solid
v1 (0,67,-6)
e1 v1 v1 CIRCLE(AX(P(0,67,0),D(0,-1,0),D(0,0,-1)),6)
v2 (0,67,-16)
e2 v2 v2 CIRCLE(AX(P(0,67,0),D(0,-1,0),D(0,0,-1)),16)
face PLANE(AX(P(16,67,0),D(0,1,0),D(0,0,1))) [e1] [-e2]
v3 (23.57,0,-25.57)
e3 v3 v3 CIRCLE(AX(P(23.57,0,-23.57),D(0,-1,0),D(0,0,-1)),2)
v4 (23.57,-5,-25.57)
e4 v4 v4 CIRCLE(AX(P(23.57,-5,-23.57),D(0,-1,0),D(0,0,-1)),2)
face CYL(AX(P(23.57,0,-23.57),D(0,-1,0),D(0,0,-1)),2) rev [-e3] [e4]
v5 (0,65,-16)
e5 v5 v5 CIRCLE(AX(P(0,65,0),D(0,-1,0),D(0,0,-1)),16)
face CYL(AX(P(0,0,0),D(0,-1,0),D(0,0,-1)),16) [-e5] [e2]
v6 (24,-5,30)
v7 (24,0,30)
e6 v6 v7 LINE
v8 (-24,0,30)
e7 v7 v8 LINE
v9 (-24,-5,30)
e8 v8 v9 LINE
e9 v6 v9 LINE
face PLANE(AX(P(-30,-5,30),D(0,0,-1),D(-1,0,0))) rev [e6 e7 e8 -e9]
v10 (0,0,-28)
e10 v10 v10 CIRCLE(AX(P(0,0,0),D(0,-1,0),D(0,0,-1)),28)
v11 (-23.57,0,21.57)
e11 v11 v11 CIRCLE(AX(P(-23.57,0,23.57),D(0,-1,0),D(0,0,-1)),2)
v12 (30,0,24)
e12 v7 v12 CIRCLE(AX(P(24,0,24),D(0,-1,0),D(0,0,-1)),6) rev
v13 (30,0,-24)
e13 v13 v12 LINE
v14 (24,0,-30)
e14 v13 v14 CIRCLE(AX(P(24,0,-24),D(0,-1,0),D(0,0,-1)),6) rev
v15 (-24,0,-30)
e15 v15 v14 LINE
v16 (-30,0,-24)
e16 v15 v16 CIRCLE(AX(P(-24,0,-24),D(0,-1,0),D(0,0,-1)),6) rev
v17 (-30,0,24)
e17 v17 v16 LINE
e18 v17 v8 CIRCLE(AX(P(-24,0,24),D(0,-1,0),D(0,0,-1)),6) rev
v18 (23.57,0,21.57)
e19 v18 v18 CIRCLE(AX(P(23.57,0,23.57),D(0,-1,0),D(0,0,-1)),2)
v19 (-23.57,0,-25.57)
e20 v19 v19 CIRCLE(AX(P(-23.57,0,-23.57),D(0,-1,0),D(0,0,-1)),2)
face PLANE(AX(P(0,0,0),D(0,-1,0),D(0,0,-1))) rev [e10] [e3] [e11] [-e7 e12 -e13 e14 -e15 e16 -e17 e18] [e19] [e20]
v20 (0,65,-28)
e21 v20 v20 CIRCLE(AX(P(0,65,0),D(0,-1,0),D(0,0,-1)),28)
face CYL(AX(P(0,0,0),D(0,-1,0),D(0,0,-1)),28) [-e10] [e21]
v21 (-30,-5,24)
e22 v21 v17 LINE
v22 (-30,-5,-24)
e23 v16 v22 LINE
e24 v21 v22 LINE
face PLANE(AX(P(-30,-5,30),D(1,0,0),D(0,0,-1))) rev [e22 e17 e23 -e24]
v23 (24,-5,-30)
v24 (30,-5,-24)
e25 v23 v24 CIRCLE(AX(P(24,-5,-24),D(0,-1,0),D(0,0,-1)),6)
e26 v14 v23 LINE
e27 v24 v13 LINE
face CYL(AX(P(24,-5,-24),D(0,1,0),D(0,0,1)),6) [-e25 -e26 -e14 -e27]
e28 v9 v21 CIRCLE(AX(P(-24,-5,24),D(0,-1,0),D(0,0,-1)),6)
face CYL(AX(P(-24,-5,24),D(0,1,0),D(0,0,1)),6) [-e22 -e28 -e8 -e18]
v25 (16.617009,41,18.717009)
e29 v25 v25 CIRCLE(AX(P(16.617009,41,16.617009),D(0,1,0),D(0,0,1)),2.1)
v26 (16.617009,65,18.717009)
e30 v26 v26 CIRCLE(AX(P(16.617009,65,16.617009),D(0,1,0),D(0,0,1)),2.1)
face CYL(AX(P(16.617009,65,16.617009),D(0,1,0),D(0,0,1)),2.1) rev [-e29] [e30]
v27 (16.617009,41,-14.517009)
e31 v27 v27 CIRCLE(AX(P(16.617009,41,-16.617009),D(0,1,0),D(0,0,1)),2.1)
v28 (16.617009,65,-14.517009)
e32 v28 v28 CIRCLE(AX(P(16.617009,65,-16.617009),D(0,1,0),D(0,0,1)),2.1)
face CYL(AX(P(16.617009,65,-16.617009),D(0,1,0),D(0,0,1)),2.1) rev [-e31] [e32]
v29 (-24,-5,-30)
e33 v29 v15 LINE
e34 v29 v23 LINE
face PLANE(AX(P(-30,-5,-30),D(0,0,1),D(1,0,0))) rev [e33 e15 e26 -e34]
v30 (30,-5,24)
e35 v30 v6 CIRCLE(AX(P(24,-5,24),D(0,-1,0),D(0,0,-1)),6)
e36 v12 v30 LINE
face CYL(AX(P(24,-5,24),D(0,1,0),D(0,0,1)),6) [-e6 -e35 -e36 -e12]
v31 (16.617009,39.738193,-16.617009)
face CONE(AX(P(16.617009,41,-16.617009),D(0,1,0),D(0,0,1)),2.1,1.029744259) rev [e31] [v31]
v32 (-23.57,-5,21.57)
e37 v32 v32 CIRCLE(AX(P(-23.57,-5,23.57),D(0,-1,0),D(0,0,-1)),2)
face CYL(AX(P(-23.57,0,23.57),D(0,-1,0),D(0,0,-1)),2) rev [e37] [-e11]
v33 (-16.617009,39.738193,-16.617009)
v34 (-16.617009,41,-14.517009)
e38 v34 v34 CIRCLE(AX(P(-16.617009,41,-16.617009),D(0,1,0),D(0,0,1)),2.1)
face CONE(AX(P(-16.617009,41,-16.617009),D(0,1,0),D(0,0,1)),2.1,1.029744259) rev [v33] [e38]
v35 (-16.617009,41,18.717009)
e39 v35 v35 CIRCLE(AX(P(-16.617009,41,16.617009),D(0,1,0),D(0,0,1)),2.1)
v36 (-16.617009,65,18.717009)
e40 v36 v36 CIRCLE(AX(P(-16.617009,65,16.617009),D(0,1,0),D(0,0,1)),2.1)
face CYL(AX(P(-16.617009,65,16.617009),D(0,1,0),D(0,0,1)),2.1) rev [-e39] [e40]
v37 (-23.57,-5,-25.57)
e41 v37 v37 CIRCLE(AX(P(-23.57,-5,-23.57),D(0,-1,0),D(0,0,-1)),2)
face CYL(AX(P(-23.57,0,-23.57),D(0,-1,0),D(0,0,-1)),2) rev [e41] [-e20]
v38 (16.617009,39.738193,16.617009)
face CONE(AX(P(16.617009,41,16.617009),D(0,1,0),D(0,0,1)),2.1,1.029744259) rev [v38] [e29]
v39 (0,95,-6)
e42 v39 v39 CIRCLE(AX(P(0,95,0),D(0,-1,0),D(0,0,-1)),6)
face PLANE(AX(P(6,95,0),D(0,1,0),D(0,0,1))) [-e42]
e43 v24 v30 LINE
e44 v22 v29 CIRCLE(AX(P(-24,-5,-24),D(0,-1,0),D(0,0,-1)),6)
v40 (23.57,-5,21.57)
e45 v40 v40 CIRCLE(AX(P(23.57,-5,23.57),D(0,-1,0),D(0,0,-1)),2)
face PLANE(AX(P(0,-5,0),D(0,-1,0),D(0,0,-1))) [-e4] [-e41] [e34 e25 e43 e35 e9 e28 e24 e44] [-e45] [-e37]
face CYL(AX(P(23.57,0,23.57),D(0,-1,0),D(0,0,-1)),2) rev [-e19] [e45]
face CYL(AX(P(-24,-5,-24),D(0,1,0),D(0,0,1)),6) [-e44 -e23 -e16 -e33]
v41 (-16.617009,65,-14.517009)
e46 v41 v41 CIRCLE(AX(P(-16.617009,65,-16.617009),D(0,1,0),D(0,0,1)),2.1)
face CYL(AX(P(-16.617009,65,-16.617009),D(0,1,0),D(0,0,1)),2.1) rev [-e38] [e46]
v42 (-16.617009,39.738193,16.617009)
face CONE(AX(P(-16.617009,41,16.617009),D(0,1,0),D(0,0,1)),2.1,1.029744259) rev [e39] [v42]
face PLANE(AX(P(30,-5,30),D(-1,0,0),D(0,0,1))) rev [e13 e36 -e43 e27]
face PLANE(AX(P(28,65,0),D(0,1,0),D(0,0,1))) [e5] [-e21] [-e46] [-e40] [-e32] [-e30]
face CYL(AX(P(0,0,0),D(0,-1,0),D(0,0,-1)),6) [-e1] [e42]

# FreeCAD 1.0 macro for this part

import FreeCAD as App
import Part
import Sketcher
from FreeCAD import Vector


def edges_at(feature, points):
    """Names of the edges that pass closest to the given points."""
    edges = feature.Shape.Edges
    near = lambda p: min(range(len(edges)), key=lambda i: edges[i].distToShape(Part.Vertex(*p))[0])
    return sorted({f"Edge{near(p) + 1}" for p in points})


def add_polygon(sketch, points):
    """Adds a closed chain of lines whose ends are joined by coincident constraints."""
    first, n = sketch.GeometryCount, len(points)
    for a, b in zip(points, points[1:] + points[:1]):
        sketch.addGeometry(Part.LineSegment(App.Vector(*a, 0), App.Vector(*b, 0)), False)
    for i in range(n):
        sketch.addConstraint(Sketcher.Constraint("Coincident", first + i, 2, first + (i + 1) % n, 1))

doc = App.newDocument("Part")
body = doc.addObject("PartDesign::Body", "Body")

# Sketch on XY plane
sketch1 = body.newObject("Sketcher::SketchObject", "Sketch")
sketch1.AttachmentSupport = (doc.getObject("XY_Plane"), [""])
sketch1.MapMode = "FlatFace"
add_polygon(sketch1, [(0, 0), (28, 0), (28, 65), (16, 65), (16, 67), (6, 67), (6, 95), (0, 95)])  # lines 0-7
sketch1.addConstraint(Sketcher.Constraint("Horizontal", 0))
sketch1.addConstraint(Sketcher.Constraint("Vertical", 1))
sketch1.addConstraint(Sketcher.Constraint("Horizontal", 2))
sketch1.addConstraint(Sketcher.Constraint("Vertical", 3))
sketch1.addConstraint(Sketcher.Constraint("Horizontal", 4))
sketch1.addConstraint(Sketcher.Constraint("Vertical", 5))
sketch1.addConstraint(Sketcher.Constraint("Horizontal", 6))
sketch1.addConstraint(Sketcher.Constraint("Vertical", 7))
sketch1.addConstraint(Sketcher.Constraint("Coincident", 7, 2, -1, 1))
sketch1.addConstraint(Sketcher.Constraint("Equal", 0, 5))
sketch1.addConstraint(Sketcher.Constraint("DistanceX", 0, 1, 0, 2, 28.0))
sketch1.addConstraint(Sketcher.Constraint("DistanceX", 2, 2, 2, 1, 12.0))
sketch1.addConstraint(Sketcher.Constraint("DistanceX", 4, 2, 4, 1, 10.0))
sketch1.addConstraint(Sketcher.Constraint("DistanceY", 1, 1, 1, 2, 65.0))
sketch1.addConstraint(Sketcher.Constraint("DistanceY", 3, 1, 3, 2, 2.0))
revolution = body.newObject("PartDesign::Revolution", "Revolution")
revolution.Profile = sketch1
revolution.ReferenceAxis = (sketch1, ["V_Axis"])
revolution.Angle = 360

# Sketch on XZ plane
sketch2 = body.newObject("Sketcher::SketchObject", "Sketch001")
sketch2.AttachmentSupport = (doc.getObject("XZ_Plane"), [""])
sketch2.MapMode = "FlatFace"
add_polygon(sketch2, [(-30, 30), (-30, -30), (30, -30), (30, 30)])  # lines 0-3
sketch2.addConstraint(Sketcher.Constraint("Vertical", 0))
sketch2.addConstraint(Sketcher.Constraint("Horizontal", 1))
sketch2.addConstraint(Sketcher.Constraint("Vertical", 2))
sketch2.addConstraint(Sketcher.Constraint("Horizontal", 3))
sketch2.addConstraint(Sketcher.Constraint("Symmetric", 0, 2, 2, 2, -1, 1))
sketch2.addConstraint(Sketcher.Constraint("Equal", 3, 0))
sketch2.addConstraint(Sketcher.Constraint("DistanceX", 1, 1, 1, 2, 60.0))
pad1 = body.newObject("PartDesign::Pad", "Pad")
pad1.Profile = sketch2
pad1.Length = 5

# Sketch on XZ plane
sketch3 = body.newObject("Sketcher::SketchObject", "Sketch002")
sketch3.AttachmentSupport = (doc.getObject("XZ_Plane"), [""])
sketch3.MapMode = "FlatFace"
sketch3.AttachmentOffset = App.Placement(Vector(0, 0, 5), App.Rotation())
sketch3.addGeometry(Part.Circle(Vector(-23.57, 23.57, 0), Vector(0, 0, 1), 2), False)
sketch3.addGeometry(Part.Circle(Vector(23.57, 23.57, 0), Vector(0, 0, 1), 2), False)
sketch3.addGeometry(Part.Circle(Vector(-23.57, -23.57, 0), Vector(0, 0, 1), 2), False)
sketch3.addGeometry(Part.Circle(Vector(23.57, -23.57, 0), Vector(0, 0, 1), 2), False)
sketch3.addConstraint(Sketcher.Constraint("Equal", 0, 1))
sketch3.addConstraint(Sketcher.Constraint("Equal", 1, 2))
sketch3.addConstraint(Sketcher.Constraint("Equal", 2, 3))
sketch3.addConstraint(Sketcher.Constraint("Symmetric", 1, 3, 2, 3, -1, 1))
sketch3.addConstraint(Sketcher.Constraint("Symmetric", 0, 3, 3, 3, -1, 1))
sketch3.addConstraint(Sketcher.Constraint("Symmetric", 0, 3, 1, 3, -2))
sketch3.addConstraint(Sketcher.Constraint("Diameter", 0, 4.0))
sketch3.addConstraint(Sketcher.Constraint("DistanceX", 0, 3, -1, 1, 23.57))
sketch3.addConstraint(Sketcher.Constraint("DistanceY", -1, 1, 0, 3, 23.57))
pocket1 = body.newObject("PartDesign::Pocket", "Pocket")
pocket1.Profile = sketch3
pocket1.Length = 5
doc.recompute()

fillet = body.newObject("PartDesign::Fillet", "Fillet")
fillet.Base = (pocket1, edges_at(pocket1, [
    (-30, -2.5, 30),
    (-30, -2.5, -30),
    (30, -2.5, -30),
    (30, -2.5, 30),
]))
fillet.Radius = 6

# Sketch on XZ plane
sketch4 = body.newObject("Sketcher::SketchObject", "Sketch003")
sketch4.AttachmentSupport = (doc.getObject("XZ_Plane"), [""])
sketch4.MapMode = "FlatFace"
sketch4.AttachmentOffset = App.Placement(Vector(0, 0, -65), App.Rotation())
sketch4.addGeometry(Part.Circle(Vector(-16.617009, -16.617009, 0), Vector(0, 0, 1), 2.1), False)
sketch4.addGeometry(Part.Circle(Vector(16.617009, -16.617009, 0), Vector(0, 0, 1), 2.1), False)
sketch4.addGeometry(Part.Circle(Vector(16.617009, 16.617009, 0), Vector(0, 0, 1), 2.1), False)
sketch4.addGeometry(Part.Circle(Vector(-16.617009, 16.617009, 0), Vector(0, 0, 1), 2.1), False)
sketch4.addConstraint(Sketcher.Constraint("Equal", 0, 1))
sketch4.addConstraint(Sketcher.Constraint("Equal", 1, 2))
sketch4.addConstraint(Sketcher.Constraint("Equal", 2, 3))
sketch4.addConstraint(Sketcher.Constraint("Symmetric", 0, 3, 2, 3, -1, 1))
sketch4.addConstraint(Sketcher.Constraint("Symmetric", 1, 3, 3, 3, -1, 1))
sketch4.addConstraint(Sketcher.Constraint("Symmetric", 0, 3, 1, 3, -2))
sketch4.addConstraint(Sketcher.Constraint("Diameter", 0, 4.2))
sketch4.addConstraint(Sketcher.Constraint("DistanceX", 0, 3, -1, 1, 16.617009))
sketch4.addConstraint(Sketcher.Constraint("DistanceY", 0, 3, -1, 1, 16.617009))
doc.recompute()
hole = body.newObject("PartDesign::Hole", "Hole")
hole.Profile = sketch4
hole.ThreadType = "None"
hole.Diameter = 4.2
hole.DepthType = "Dimension"
hole.Depth = 24
hole.DrillPoint = "Angled"
hole.DrillPointAngle = 118
hole.Reversed = True

doc.recompute()
